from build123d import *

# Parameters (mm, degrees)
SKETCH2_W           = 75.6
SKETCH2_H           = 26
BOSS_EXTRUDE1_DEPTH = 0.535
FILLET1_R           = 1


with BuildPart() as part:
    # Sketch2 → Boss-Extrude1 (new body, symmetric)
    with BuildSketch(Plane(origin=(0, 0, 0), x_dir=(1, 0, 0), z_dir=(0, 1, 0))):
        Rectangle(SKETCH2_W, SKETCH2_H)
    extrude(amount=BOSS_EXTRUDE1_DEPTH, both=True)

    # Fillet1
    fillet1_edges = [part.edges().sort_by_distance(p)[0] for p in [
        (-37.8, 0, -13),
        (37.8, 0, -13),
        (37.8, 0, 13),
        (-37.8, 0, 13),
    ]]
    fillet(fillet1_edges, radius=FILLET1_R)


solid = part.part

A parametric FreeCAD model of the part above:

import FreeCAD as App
import Part
import Sketcher
Q = App.Units.Quantity


def edges_at(feature, points):
    """Names of the edges that pass closest to the given points."""
    edges = feature.Shape.Edges
    near = lambda p: min(range(len(edges)), key=lambda i: edges[i].distToShape(Part.Vertex(*p))[0])
    return sorted({f"Edge{near(p) + 1}" for p in points})


def add_polygon(sketch, points):
    """Adds a closed chain of lines whose ends are joined by coincident constraints."""
    first, n = sketch.GeometryCount, len(points)
    for a, b in zip(points, points[1:] + points[:1]):
        sketch.addGeometry(Part.LineSegment(App.Vector(*a, 0), App.Vector(*b, 0)), False)
    for i in range(n):
        sketch.addConstraint(Sketcher.Constraint("Coincident", first + i, 2, first + (i + 1) % n, 1))

doc = App.newDocument("Part")
body = doc.addObject("PartDesign::Body", "Body")

# Sketch on XZ plane
sketch1 = body.newObject("Sketcher::SketchObject", "Sketch")
sketch1.AttachmentSupport = (doc.getObject("XZ_Plane"), [""])
sketch1.MapMode = "FlatFace"
add_polygon(sketch1, [(-38, -13), (-38, 13), (38, 13), (38, -13)])  # lines 0-3
sketch1.addConstraint([
    Sketcher.Constraint("Vertical", 0),
    Sketcher.Constraint("Horizontal", 1),
    Sketcher.Constraint("Vertical", 2),
    Sketcher.Constraint("Horizontal", 3),
    Sketcher.Constraint("Symmetric", 0, 2, 2, 2, -1, 1),
    Sketcher.Constraint("DistanceY", 0, 1, 0, 2, Q("26 mm")),
    Sketcher.Constraint("DistanceX", 1, 1, 1, 2, Q("75.6 mm")),
])
pad1 = body.newObject("PartDesign::Pad", "Pad")
pad1.Profile = sketch1
pad1.Length = 1.07
pad1.Midplane = True
doc.recompute()

fillet = body.newObject("PartDesign::Fillet", "Fillet")
fillet.Base = (pad1, edges_at(pad1, [
    (-37.8, 0, -13),
    (37.8, 0, -13),
    (37.8, 0, 13),
    (-37.8, 0, 13),
]))
fillet.Radius = 1

doc.recompute()
